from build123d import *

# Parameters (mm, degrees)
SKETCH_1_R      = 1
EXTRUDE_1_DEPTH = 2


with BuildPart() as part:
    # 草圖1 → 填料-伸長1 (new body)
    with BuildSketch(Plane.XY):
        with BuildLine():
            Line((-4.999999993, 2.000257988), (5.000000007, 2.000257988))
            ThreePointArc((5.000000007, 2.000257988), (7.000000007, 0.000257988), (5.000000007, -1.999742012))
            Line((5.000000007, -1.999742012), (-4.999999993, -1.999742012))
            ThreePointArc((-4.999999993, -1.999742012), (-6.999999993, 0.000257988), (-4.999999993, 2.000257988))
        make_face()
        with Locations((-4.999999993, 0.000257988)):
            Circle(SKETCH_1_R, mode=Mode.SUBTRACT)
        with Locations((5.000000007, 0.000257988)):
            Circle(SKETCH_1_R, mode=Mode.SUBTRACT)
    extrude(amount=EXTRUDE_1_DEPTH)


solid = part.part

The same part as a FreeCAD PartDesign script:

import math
import FreeCAD as App
import Part
import Sketcher
from FreeCAD import Vector
Q = App.Units.Quantity

doc = App.newDocument("Part")
params = doc.addObject("Spreadsheet::Sheet", "Params")
for row, (alias, value) in enumerate([
    ("sketch1_diameter", "2 mm"),
    ("sketch1_radius", "2 mm"),
    ("sketch1_width", "10 mm"),
    ("pad1_length", "2 mm"),
], start=1):
    params.set(f"A{row}", alias)
    params.set(f"B{row}", "=" + value)
    params.setAlias(f"B{row}", alias)

body = doc.addObject("PartDesign::Body", "Body")

# Sketch on XY plane
sketch1 = doc.addObject("Sketcher::SketchObject", "Sketch")
body.addObject(sketch1)
sketch1.AttachmentSupport = (doc.XY_Plane, [""])
sketch1.MapMode = "FlatFace"
sketch1.addGeometry([
    Part.LineSegment(Vector(5, 2, 0), Vector(-5, 2, 0)),  # 0
    Part.ArcOfCircle(Part.Circle(Vector(-5, 0, 0), Vector(0, 0, 1), 2), math.radians(90), math.radians(270)),  # 1
    Part.LineSegment(Vector(-5, -2, 0), Vector(5, -2, 0)),  # 2
    Part.ArcOfCircle(Part.Circle(Vector(5, 0, 0), Vector(0, 0, 1), 2), math.radians(-90), math.radians(90)),  # 3
    Part.Circle(Vector(5, 0, 0), Vector(0, 0, 1), 1),  # 4
    Part.Circle(Vector(-5, 0, 0), Vector(0, 0, 1), 1),  # 5
], False)
sketch1.addConstraint([
    Sketcher.Constraint("Tangent", 0, 2, 1, 1),
    Sketcher.Constraint("Tangent", 1, 2, 2, 1),
    Sketcher.Constraint("Tangent", 2, 2, 3, 1),
    Sketcher.Constraint("Tangent", 3, 2, 0, 1),
    Sketcher.Constraint("Horizontal", 0),
    Sketcher.Constraint("Horizontal", 2),
    Sketcher.Constraint("Coincident", 4, 3, 3, 3),
    Sketcher.Constraint("Coincident", 5, 3, 1, 3),
    Sketcher.Constraint("Equal", 4, 5),
    Sketcher.Constraint("Diameter", 4, Q("2 mm")),
    Sketcher.Constraint("Radius", 1, Q("2 mm")),
    Sketcher.Constraint("DistanceX", 0, 2, 0, 1, Q("10 mm")),
    Sketcher.Constraint("DistanceX", 1, 3, -1, 1, Q("5 mm")),
    Sketcher.Constraint("DistanceY", -1, 1, 1, 3, Q("0.000258 mm")),
])
sketch1.setExpression("Constraints[9]", "Params.sketch1_diameter")
sketch1.setExpression("Constraints[10]", "Params.sketch1_radius")
sketch1.setExpression("Constraints[11]", "Params.sketch1_width")
pad1 = doc.addObject("PartDesign::Pad", "Pad")
body.addObject(pad1)
pad1.Profile = sketch1
pad1.setExpression("Length", "Params.pad1_length")

doc.recompute()
